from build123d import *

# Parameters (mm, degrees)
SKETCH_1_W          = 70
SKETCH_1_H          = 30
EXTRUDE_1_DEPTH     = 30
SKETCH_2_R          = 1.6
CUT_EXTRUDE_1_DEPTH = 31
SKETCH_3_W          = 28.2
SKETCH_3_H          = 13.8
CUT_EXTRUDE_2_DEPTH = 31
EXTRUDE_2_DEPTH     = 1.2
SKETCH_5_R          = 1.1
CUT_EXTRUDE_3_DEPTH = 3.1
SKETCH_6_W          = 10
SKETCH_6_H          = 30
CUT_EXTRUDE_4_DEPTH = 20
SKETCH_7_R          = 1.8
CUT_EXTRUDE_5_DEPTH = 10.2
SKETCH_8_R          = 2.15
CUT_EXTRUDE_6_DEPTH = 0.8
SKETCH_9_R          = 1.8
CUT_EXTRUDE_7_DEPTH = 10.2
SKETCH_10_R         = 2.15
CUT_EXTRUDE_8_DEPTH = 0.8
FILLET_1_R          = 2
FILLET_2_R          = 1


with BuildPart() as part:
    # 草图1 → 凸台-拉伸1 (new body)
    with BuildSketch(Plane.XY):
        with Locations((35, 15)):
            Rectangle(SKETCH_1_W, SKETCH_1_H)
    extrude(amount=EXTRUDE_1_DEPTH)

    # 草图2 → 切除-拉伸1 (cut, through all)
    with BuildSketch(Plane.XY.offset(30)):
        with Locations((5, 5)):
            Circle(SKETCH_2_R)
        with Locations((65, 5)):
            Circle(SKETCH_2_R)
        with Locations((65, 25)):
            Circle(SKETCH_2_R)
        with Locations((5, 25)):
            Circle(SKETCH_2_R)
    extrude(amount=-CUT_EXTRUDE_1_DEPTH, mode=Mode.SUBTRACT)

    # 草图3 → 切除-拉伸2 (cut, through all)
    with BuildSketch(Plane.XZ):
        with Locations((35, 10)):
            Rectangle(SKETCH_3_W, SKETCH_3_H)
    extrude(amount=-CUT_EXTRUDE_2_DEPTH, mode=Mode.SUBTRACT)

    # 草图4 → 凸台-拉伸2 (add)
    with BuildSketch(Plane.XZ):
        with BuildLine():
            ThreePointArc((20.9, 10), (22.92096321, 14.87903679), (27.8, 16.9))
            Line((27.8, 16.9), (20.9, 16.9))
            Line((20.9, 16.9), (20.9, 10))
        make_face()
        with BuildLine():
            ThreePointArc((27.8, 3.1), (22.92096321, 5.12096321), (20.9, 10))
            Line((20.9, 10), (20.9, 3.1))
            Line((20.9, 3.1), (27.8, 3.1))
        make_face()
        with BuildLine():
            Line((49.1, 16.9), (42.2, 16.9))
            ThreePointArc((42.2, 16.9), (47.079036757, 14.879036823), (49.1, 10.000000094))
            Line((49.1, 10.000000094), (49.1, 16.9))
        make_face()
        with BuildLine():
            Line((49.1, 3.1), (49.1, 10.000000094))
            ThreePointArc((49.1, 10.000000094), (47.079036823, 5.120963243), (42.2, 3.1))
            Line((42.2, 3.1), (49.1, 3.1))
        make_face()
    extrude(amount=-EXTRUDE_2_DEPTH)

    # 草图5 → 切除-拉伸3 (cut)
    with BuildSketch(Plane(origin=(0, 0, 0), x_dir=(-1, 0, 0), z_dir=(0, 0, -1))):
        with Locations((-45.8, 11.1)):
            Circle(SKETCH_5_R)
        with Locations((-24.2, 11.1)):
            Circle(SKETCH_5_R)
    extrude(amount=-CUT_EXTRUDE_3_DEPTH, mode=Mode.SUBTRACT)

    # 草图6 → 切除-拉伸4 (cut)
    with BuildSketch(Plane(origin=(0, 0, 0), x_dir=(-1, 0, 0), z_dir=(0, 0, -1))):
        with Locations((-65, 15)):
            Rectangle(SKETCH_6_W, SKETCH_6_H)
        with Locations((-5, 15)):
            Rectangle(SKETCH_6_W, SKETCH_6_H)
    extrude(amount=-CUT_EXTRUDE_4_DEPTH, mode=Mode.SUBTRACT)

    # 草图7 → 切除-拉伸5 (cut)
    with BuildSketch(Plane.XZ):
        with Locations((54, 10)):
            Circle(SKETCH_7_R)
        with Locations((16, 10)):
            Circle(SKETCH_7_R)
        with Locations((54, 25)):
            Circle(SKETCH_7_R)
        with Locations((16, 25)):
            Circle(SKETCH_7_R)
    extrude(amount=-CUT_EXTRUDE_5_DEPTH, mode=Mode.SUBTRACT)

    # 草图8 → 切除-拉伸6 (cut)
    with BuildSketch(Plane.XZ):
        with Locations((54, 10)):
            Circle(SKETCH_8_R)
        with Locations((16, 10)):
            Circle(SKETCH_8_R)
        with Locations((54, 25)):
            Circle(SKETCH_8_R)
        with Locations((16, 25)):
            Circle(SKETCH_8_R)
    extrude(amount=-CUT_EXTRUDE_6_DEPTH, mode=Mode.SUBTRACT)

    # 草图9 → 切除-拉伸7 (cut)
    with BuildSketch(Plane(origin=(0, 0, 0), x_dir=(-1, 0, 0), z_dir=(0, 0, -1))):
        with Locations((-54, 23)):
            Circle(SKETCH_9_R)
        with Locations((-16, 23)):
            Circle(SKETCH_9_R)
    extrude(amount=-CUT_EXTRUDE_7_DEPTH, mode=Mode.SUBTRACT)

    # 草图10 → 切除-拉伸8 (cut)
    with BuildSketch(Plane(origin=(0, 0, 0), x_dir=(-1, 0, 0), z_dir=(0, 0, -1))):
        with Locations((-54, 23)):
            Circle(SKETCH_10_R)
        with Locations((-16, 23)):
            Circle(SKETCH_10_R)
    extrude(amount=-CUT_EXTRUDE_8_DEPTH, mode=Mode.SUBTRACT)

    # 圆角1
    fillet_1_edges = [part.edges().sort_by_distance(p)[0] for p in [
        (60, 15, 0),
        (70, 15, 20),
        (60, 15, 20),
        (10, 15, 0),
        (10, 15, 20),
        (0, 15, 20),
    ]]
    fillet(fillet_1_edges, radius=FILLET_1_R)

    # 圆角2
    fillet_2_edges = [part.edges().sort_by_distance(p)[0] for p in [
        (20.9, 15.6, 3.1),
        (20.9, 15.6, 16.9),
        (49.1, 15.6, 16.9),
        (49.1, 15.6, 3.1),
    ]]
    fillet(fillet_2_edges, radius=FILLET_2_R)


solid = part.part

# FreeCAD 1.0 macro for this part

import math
import FreeCAD as App
import Part
import Sketcher
from FreeCAD import Vector
Q = App.Units.Quantity


def edges_at(feature, points):
    """Names of the edges that pass closest to the given points."""
    edges = feature.Shape.Edges
    near = lambda p: min(range(len(edges)), key=lambda i: edges[i].distToShape(Part.Vertex(*p))[0])
    return sorted({f"Edge{near(p) + 1}" for p in points})

doc = App.newDocument("Part")
body = doc.addObject("PartDesign::Body", "Body")

# Sketch on XY plane
sketch1 = body.newObject("Sketcher::SketchObject", "Sketch")
sketch1.AttachmentSupport = (doc.getObject("XY_Plane"), [""])
sketch1.MapMode = "FlatFace"
sketch1.addGeometry([
    Part.LineSegment(Vector(0, 30, 0), Vector(0, 0, 0)),
    Part.LineSegment(Vector(0, 0, 0), Vector(70, 0, 0)),
    Part.LineSegment(Vector(70, 0, 0), Vector(70, 30, 0)),
    Part.LineSegment(Vector(70, 30, 0), Vector(0, 30, 0)),
], False)
sketch1.addConstraint([
    Sketcher.Constraint("Coincident", 0, 2, 1, 1),
    Sketcher.Constraint("Coincident", 1, 2, 2, 1),
    Sketcher.Constraint("Coincident", 2, 2, 3, 1),
    Sketcher.Constraint("Coincident", 3, 2, 0, 1),
    Sketcher.Constraint("Vertical", 0),
    Sketcher.Constraint("Horizontal", 1),
    Sketcher.Constraint("Vertical", 2),
    Sketcher.Constraint("Horizontal", 3),
    Sketcher.Constraint("Coincident", 0, 2, -1, 1),
    Sketcher.Constraint("DistanceX", 1, 1, 1, 2, Q("70 mm")),
    Sketcher.Constraint("DistanceY", 0, 2, 0, 1, Q("30 mm")),
])
pad1 = body.newObject("PartDesign::Pad", "Pad")
pad1.Profile = sketch1
pad1.Length = 30

# Sketch on XY plane
sketch2 = body.newObject("Sketcher::SketchObject", "Sketch001")
sketch2.AttachmentSupport = (doc.getObject("XY_Plane"), [""])
sketch2.MapMode = "FlatFace"
sketch2.AttachmentOffset = App.Placement(Vector(0, 0, 30), App.Rotation())
sketch2.addGeometry([
    Part.Circle(Vector(5, 5, 0), Vector(0, 0, 1), 1.6),
    Part.Circle(Vector(65, 5, 0), Vector(0, 0, 1), 1.6),
    Part.Circle(Vector(65, 25, 0), Vector(0, 0, 1), 1.6),
    Part.Circle(Vector(5, 25, 0), Vector(0, 0, 1), 1.6),
], False)
sketch2.addConstraint([
    Sketcher.Constraint("Equal", 0, 1),
    Sketcher.Constraint("Equal", 1, 2),
    Sketcher.Constraint("Equal", 2, 3),
    Sketcher.Constraint("Horizontal", 0, 3, 1, 3),
    Sketcher.Constraint("Horizontal", 2, 3, 3, 3),
    Sketcher.Constraint("Vertical", 1, 3, 2, 3),
    Sketcher.Constraint("Vertical", 0, 3, 3, 3),
    Sketcher.Constraint("Diameter", 0, Q("3.2 mm")),
    Sketcher.Constraint("DistanceX", -1, 1, 0, 3, Q("5 mm")),
    Sketcher.Constraint("DistanceY", -1, 1, 0, 3, Q("5 mm")),
    Sketcher.Constraint("DistanceX", -1, 1, 1, 3, Q("65 mm")),
    Sketcher.Constraint("DistanceY", -1, 1, 2, 3, Q("25 mm")),
])
pocket1 = body.newObject("PartDesign::Pocket", "Pocket")
pocket1.Profile = sketch2
pocket1.Type = "ThroughAll"

# Sketch on XZ plane
sketch3 = body.newObject("Sketcher::SketchObject", "Sketch002")
sketch3.AttachmentSupport = (doc.getObject("XZ_Plane"), [""])
sketch3.MapMode = "FlatFace"
sketch3.addGeometry([
    Part.LineSegment(Vector(21, 17, 0), Vector(21, 3, 0)),
    Part.LineSegment(Vector(21, 3, 0), Vector(49, 3, 0)),
    Part.LineSegment(Vector(49, 3, 0), Vector(49, 17, 0)),
    Part.LineSegment(Vector(49, 17, 0), Vector(21, 17, 0)),
], False)
sketch3.addConstraint([
    Sketcher.Constraint("Coincident", 0, 2, 1, 1),
    Sketcher.Constraint("Coincident", 1, 2, 2, 1),
    Sketcher.Constraint("Coincident", 2, 2, 3, 1),
    Sketcher.Constraint("Coincident", 3, 2, 0, 1),
    Sketcher.Constraint("Vertical", 0),
    Sketcher.Constraint("Horizontal", 1),
    Sketcher.Constraint("Vertical", 2),
    Sketcher.Constraint("Horizontal", 3),
    Sketcher.Constraint("DistanceX", 1, 1, 1, 2, Q("28.2 mm")),
    Sketcher.Constraint("DistanceY", 0, 2, 0, 1, Q("13.8 mm")),
    Sketcher.Constraint("DistanceX", -1, 1, 0, 2, Q("20.9 mm")),
    Sketcher.Constraint("DistanceY", -1, 1, 0, 2, Q("3.1 mm")),
])
pocket2 = body.newObject("PartDesign::Pocket", "Pocket001")
pocket2.Profile = sketch3
pocket2.Type = "ThroughAll"

# Sketch on XZ plane
sketch4 = body.newObject("Sketcher::SketchObject", "Sketch003")
sketch4.AttachmentSupport = (doc.getObject("XZ_Plane"), [""])
sketch4.MapMode = "FlatFace"
sketch4.addGeometry([
    Part.ArcOfCircle(Part.Circle(Vector(28, 10, 0), Vector(0, 0, 1), 7), math.radians(90), math.radians(180)),  # 0
    Part.LineSegment(Vector(28, 17, 0), Vector(21, 17, 0)),  # 1
    Part.LineSegment(Vector(21, 17, 0), Vector(21, 10, 0)),  # 2
    Part.ArcOfCircle(Part.Circle(Vector(28, 10, 0), Vector(0, 0, 1), 7), math.radians(-180), math.radians(-90)),  # 3
    Part.LineSegment(Vector(21, 10, 0), Vector(21, 3, 0)),  # 4
    Part.LineSegment(Vector(21, 3, 0), Vector(28, 3, 0)),  # 5
    Part.LineSegment(Vector(49, 17, 0), Vector(42, 17, 0)),  # 6
    Part.ArcOfCircle(Part.Circle(Vector(42, 10, 0), Vector(0, 0, 1), 7), math.radians(0), math.radians(90)),  # 7
    Part.LineSegment(Vector(49, 10, 0), Vector(49, 17, 0)),  # 8
    Part.LineSegment(Vector(49, 3, 0), Vector(49, 10, 0)),  # 9
    Part.ArcOfCircle(Part.Circle(Vector(42, 10, 0), Vector(0, 0, 1), 7), math.radians(-90), math.radians(0)),  # 10
    Part.LineSegment(Vector(42, 3, 0), Vector(49, 3, 0)),  # 11
], False)
sketch4.addConstraint([
    Sketcher.Constraint("Tangent", 0, 1, 1, 1),
    Sketcher.Constraint("Coincident", 1, 2, 2, 1),
    Sketcher.Constraint("Tangent", 2, 2, 0, 2),
    Sketcher.Constraint("Tangent", 3, 1, 4, 1),
    Sketcher.Constraint("Coincident", 4, 2, 5, 1),
    Sketcher.Constraint("Tangent", 5, 2, 3, 2),
    Sketcher.Constraint("Tangent", 6, 2, 7, 2),
    Sketcher.Constraint("Tangent", 7, 1, 8, 1),
    Sketcher.Constraint("Coincident", 8, 2, 6, 1),
    Sketcher.Constraint("Tangent", 9, 2, 10, 2),
    Sketcher.Constraint("Tangent", 10, 1, 11, 1),
    Sketcher.Constraint("Coincident", 11, 2, 9, 1),
    Sketcher.Constraint("Horizontal", 1),
    Sketcher.Constraint("Vertical", 2),
    Sketcher.Constraint("Vertical", 4),
    Sketcher.Constraint("Horizontal", 5),
    Sketcher.Constraint("Horizontal", 6),
    Sketcher.Constraint("Vertical", 8),
    Sketcher.Constraint("Vertical", 9),
    Sketcher.Constraint("Horizontal", 11),
    Sketcher.Constraint("Coincident", 3, 3, 0, 3),
    Sketcher.Constraint("Coincident", 10, 3, 7, 3),
    Sketcher.Constraint("Equal", 0, 3),
    Sketcher.Constraint("Equal", 3, 7),
    Sketcher.Constraint("Equal", 7, 10),
    Sketcher.Constraint("Horizontal", 3, 3, 7, 3),
    Sketcher.Constraint("Radius", 0, Q("6.9 mm")),
    Sketcher.Constraint("DistanceY", -1, 1, 0, 3, Q("10 mm")),
    Sketcher.Constraint("DistanceX", -1, 1, 0, 3, Q("27.8 mm")),
    Sketcher.Constraint("DistanceX", -1, 1, 7, 3, Q("42.2 mm")),
])
pad2 = body.newObject("PartDesign::Pad", "Pad001")
pad2.Profile = sketch4
pad2.Length = 1.2
pad2.Reversed = True

# Sketch on XY plane
sketch5 = body.newObject("Sketcher::SketchObject", "Sketch004")
sketch5.AttachmentSupport = (doc.getObject("XY_Plane"), [""])
sketch5.MapMode = "FlatFace"
sketch5.addGeometry([
    Part.Circle(Vector(45.8, 11.1, 0), Vector(0, 0, 1), 1.1),
    Part.Circle(Vector(24.2, 11.1, 0), Vector(0, 0, 1), 1.1),
], False)
sketch5.addConstraint([
    Sketcher.Constraint("Equal", 0, 1),
    Sketcher.Constraint("Horizontal", 0, 3, 1, 3),
    Sketcher.Constraint("Diameter", 0, Q("2.2 mm")),
    Sketcher.Constraint("DistanceX", -1, 1, 0, 3, Q("45.8 mm")),
    Sketcher.Constraint("DistanceY", -1, 1, 0, 3, Q("11.1 mm")),
    Sketcher.Constraint("DistanceX", -1, 1, 1, 3, Q("24.2 mm")),
])
pocket3 = body.newObject("PartDesign::Pocket", "Pocket002")
pocket3.Profile = sketch5
pocket3.Length = 3.1
pocket3.Reversed = True

# Sketch on XY plane
sketch6 = body.newObject("Sketcher::SketchObject", "Sketch005")
sketch6.AttachmentSupport = (doc.getObject("XY_Plane"), [""])
sketch6.MapMode = "FlatFace"
sketch6.addGeometry([
    Part.LineSegment(Vector(70, 30, 0), Vector(70, 0, 0)),  # 0
    Part.LineSegment(Vector(70, 0, 0), Vector(60, 0, 0)),  # 1
    Part.LineSegment(Vector(60, 0, 0), Vector(60, 30, 0)),  # 2
    Part.LineSegment(Vector(60, 30, 0), Vector(70, 30, 0)),  # 3
    Part.LineSegment(Vector(10, 30, 0), Vector(10, 0, 0)),  # 4
    Part.LineSegment(Vector(10, 0, 0), Vector(0, 0, 0)),  # 5
    Part.LineSegment(Vector(0, 0, 0), Vector(0, 30, 0)),  # 6
    Part.LineSegment(Vector(0, 30, 0), Vector(10, 30, 0)),  # 7
], False)
sketch6.addConstraint([
    Sketcher.Constraint("Coincident", 0, 2, 1, 1),
    Sketcher.Constraint("Coincident", 1, 2, 2, 1),
    Sketcher.Constraint("Coincident", 2, 2, 3, 1),
    Sketcher.Constraint("Coincident", 3, 2, 0, 1),
    Sketcher.Constraint("Coincident", 4, 2, 5, 1),
    Sketcher.Constraint("Coincident", 5, 2, 6, 1),
    Sketcher.Constraint("Coincident", 6, 2, 7, 1),
    Sketcher.Constraint("Coincident", 7, 2, 4, 1),
    Sketcher.Constraint("Vertical", 0),
    Sketcher.Constraint("Horizontal", 1),
    Sketcher.Constraint("Vertical", 2),
    Sketcher.Constraint("Horizontal", 3),
    Sketcher.Constraint("Vertical", 4),
    Sketcher.Constraint("Horizontal", 5),
    Sketcher.Constraint("Vertical", 6),
    Sketcher.Constraint("Horizontal", 7),
    Sketcher.Constraint("Coincident", 5, 2, -1, 1),
    Sketcher.Constraint("PointOnObject", 0, 2, -1),
    Sketcher.Constraint("Horizontal", 3, 2, 6, 2),
    Sketcher.Constraint("Equal", 3, 5),
    Sketcher.Constraint("DistanceX", 1, 2, 1, 1, Q("10 mm")),
    Sketcher.Constraint("DistanceY", 0, 2, 0, 1, Q("30 mm")),
    Sketcher.Constraint("DistanceX", -1, 1, 0, 2, Q("70 mm")),
])
pocket4 = body.newObject("PartDesign::Pocket", "Pocket003")
pocket4.Profile = sketch6
pocket4.Length = 20
pocket4.Reversed = True

# Sketch on XZ plane
sketch7 = body.newObject("Sketcher::SketchObject", "Sketch006")
sketch7.AttachmentSupport = (doc.getObject("XZ_Plane"), [""])
sketch7.MapMode = "FlatFace"
sketch7.addGeometry([
    Part.Circle(Vector(54, 10, 0), Vector(0, 0, 1), 1.8),
    Part.Circle(Vector(16, 10, 0), Vector(0, 0, 1), 1.8),
    Part.Circle(Vector(54, 25, 0), Vector(0, 0, 1), 1.8),
    Part.Circle(Vector(16, 25, 0), Vector(0, 0, 1), 1.8),
], False)
sketch7.addConstraint([
    Sketcher.Constraint("Equal", 0, 1),
    Sketcher.Constraint("Equal", 1, 2),
    Sketcher.Constraint("Equal", 2, 3),
    Sketcher.Constraint("Horizontal", 0, 3, 1, 3),
    Sketcher.Constraint("Horizontal", 2, 3, 3, 3),
    Sketcher.Constraint("Vertical", 0, 3, 2, 3),
    Sketcher.Constraint("Vertical", 1, 3, 3, 3),
    Sketcher.Constraint("Diameter", 0, Q("3.6 mm")),
    Sketcher.Constraint("DistanceX", -1, 1, 0, 3, Q("54 mm")),
    Sketcher.Constraint("DistanceY", -1, 1, 0, 3, Q("10 mm")),
    Sketcher.Constraint("DistanceX", -1, 1, 1, 3, Q("16 mm")),
    Sketcher.Constraint("DistanceY", -1, 1, 2, 3, Q("25 mm")),
])
pocket5 = body.newObject("PartDesign::Pocket", "Pocket004")
pocket5.Profile = sketch7
pocket5.Length = 10.2

# Sketch on XZ plane
sketch8 = body.newObject("Sketcher::SketchObject", "Sketch007")
sketch8.AttachmentSupport = (doc.getObject("XZ_Plane"), [""])
sketch8.MapMode = "FlatFace"
sketch8.addGeometry([
    Part.Circle(Vector(54, 10, 0), Vector(0, 0, 1), 2.1),
    Part.Circle(Vector(16, 10, 0), Vector(0, 0, 1), 2.1),
    Part.Circle(Vector(54, 25, 0), Vector(0, 0, 1), 2.1),
    Part.Circle(Vector(16, 25, 0), Vector(0, 0, 1), 2.1),
], False)
sketch8.addConstraint([
    Sketcher.Constraint("Equal", 0, 1),
    Sketcher.Constraint("Equal", 1, 2),
    Sketcher.Constraint("Equal", 2, 3),
    Sketcher.Constraint("Horizontal", 0, 3, 1, 3),
    Sketcher.Constraint("Horizontal", 2, 3, 3, 3),
    Sketcher.Constraint("Vertical", 0, 3, 2, 3),
    Sketcher.Constraint("Vertical", 1, 3, 3, 3),
    Sketcher.Constraint("Diameter", 0, Q("4.3 mm")),
    Sketcher.Constraint("DistanceX", -1, 1, 0, 3, Q("54 mm")),
    Sketcher.Constraint("DistanceY", -1, 1, 0, 3, Q("10 mm")),
    Sketcher.Constraint("DistanceX", -1, 1, 1, 3, Q("16 mm")),
    Sketcher.Constraint("DistanceY", -1, 1, 2, 3, Q("25 mm")),
])
pocket6 = body.newObject("PartDesign::Pocket", "Pocket005")
pocket6.Profile = sketch8
pocket6.Length = 0.8

# Sketch on XY plane
sketch9 = body.newObject("Sketcher::SketchObject", "Sketch008")
sketch9.AttachmentSupport = (doc.getObject("XY_Plane"), [""])
sketch9.MapMode = "FlatFace"
sketch9.addGeometry([
    Part.Circle(Vector(54, 23, 0), Vector(0, 0, 1), 1.8),
    Part.Circle(Vector(16, 23, 0), Vector(0, 0, 1), 1.8),
], False)
sketch9.addConstraint([
    Sketcher.Constraint("Equal", 0, 1),
    Sketcher.Constraint("Horizontal", 0, 3, 1, 3),
    Sketcher.Constraint("Diameter", 0, Q("3.6 mm")),
    Sketcher.Constraint("DistanceX", -1, 1, 0, 3, Q("54 mm")),
    Sketcher.Constraint("DistanceY", -1, 1, 0, 3, Q("23 mm")),
    Sketcher.Constraint("DistanceX", -1, 1, 1, 3, Q("16 mm")),
])
pocket7 = body.newObject("PartDesign::Pocket", "Pocket006")
pocket7.Profile = sketch9
pocket7.Length = 10.2
pocket7.Reversed = True

# Sketch on XY plane
sketch10 = body.newObject("Sketcher::SketchObject", "Sketch009")
sketch10.AttachmentSupport = (doc.getObject("XY_Plane"), [""])
sketch10.MapMode = "FlatFace"
sketch10.addGeometry([
    Part.Circle(Vector(54, 23, 0), Vector(0, 0, 1), 2.1),
    Part.Circle(Vector(16, 23, 0), Vector(0, 0, 1), 2.1),
], False)
sketch10.addConstraint([
    Sketcher.Constraint("Equal", 0, 1),
    Sketcher.Constraint("Horizontal", 0, 3, 1, 3),
    Sketcher.Constraint("Diameter", 0, Q("4.3 mm")),
    Sketcher.Constraint("DistanceX", -1, 1, 0, 3, Q("54 mm")),
    Sketcher.Constraint("DistanceY", -1, 1, 0, 3, Q("23 mm")),
    Sketcher.Constraint("DistanceX", -1, 1, 1, 3, Q("16 mm")),
])
pocket8 = body.newObject("PartDesign::Pocket", "Pocket007")
pocket8.Profile = sketch10
pocket8.Length = 0.8
pocket8.Reversed = True
doc.recompute()

fillet = body.newObject("PartDesign::Fillet", "Fillet")
fillet.Base = (pocket8, edges_at(pocket8, [
    (60, 15, 0),
    (70, 15, 20),
    (60, 15, 20),
    (10, 15, 0),
    (10, 15, 20),
    (0, 15, 20),
]))
fillet.Radius = 2
doc.recompute()

fillet2 = body.newObject("PartDesign::Fillet", "Fillet001")
fillet2.Base = (fillet, edges_at(fillet, [
    (20.9, 15.6, 3.1),
    (20.9, 15.6, 16.9),
    (49.1, 15.6, 16.9),
    (49.1, 15.6, 3.1),
]))
fillet2.Radius = 1

doc.recompute()
